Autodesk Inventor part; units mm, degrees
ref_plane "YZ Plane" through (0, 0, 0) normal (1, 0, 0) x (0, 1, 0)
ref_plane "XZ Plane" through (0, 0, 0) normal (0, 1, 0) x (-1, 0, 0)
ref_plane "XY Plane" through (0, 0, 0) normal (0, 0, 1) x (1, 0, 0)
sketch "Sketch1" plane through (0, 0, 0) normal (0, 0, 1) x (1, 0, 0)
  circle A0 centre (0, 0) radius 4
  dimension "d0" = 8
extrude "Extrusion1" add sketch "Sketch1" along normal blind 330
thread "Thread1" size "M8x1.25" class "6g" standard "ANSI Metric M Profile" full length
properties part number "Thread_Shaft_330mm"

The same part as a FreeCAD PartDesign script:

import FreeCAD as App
import Part
import Sketcher
from FreeCAD import Vector
Q = App.Units.Quantity

doc = App.newDocument("Part")
body = doc.addObject("PartDesign::Body", "Body")

# Sketch on XY plane
sketch1 = body.newObject("Sketcher::SketchObject", "Sketch")
sketch1.AttachmentSupport = (doc.getObject("XY_Plane"), [""])
sketch1.MapMode = "FlatFace"
sketch1.addGeometry(Part.Circle(Vector(0, 0, 0), Vector(0, 0, 1), 4), False)
sketch1.addConstraint([
    Sketcher.Constraint("Coincident", 0, 3, -1, 1),
    Sketcher.Constraint("Diameter", 0, Q("8 mm")),
])
pad1 = body.newObject("PartDesign::Pad", "Pad")
pad1.Profile = sketch1
pad1.Length = 330

doc.recompute()
